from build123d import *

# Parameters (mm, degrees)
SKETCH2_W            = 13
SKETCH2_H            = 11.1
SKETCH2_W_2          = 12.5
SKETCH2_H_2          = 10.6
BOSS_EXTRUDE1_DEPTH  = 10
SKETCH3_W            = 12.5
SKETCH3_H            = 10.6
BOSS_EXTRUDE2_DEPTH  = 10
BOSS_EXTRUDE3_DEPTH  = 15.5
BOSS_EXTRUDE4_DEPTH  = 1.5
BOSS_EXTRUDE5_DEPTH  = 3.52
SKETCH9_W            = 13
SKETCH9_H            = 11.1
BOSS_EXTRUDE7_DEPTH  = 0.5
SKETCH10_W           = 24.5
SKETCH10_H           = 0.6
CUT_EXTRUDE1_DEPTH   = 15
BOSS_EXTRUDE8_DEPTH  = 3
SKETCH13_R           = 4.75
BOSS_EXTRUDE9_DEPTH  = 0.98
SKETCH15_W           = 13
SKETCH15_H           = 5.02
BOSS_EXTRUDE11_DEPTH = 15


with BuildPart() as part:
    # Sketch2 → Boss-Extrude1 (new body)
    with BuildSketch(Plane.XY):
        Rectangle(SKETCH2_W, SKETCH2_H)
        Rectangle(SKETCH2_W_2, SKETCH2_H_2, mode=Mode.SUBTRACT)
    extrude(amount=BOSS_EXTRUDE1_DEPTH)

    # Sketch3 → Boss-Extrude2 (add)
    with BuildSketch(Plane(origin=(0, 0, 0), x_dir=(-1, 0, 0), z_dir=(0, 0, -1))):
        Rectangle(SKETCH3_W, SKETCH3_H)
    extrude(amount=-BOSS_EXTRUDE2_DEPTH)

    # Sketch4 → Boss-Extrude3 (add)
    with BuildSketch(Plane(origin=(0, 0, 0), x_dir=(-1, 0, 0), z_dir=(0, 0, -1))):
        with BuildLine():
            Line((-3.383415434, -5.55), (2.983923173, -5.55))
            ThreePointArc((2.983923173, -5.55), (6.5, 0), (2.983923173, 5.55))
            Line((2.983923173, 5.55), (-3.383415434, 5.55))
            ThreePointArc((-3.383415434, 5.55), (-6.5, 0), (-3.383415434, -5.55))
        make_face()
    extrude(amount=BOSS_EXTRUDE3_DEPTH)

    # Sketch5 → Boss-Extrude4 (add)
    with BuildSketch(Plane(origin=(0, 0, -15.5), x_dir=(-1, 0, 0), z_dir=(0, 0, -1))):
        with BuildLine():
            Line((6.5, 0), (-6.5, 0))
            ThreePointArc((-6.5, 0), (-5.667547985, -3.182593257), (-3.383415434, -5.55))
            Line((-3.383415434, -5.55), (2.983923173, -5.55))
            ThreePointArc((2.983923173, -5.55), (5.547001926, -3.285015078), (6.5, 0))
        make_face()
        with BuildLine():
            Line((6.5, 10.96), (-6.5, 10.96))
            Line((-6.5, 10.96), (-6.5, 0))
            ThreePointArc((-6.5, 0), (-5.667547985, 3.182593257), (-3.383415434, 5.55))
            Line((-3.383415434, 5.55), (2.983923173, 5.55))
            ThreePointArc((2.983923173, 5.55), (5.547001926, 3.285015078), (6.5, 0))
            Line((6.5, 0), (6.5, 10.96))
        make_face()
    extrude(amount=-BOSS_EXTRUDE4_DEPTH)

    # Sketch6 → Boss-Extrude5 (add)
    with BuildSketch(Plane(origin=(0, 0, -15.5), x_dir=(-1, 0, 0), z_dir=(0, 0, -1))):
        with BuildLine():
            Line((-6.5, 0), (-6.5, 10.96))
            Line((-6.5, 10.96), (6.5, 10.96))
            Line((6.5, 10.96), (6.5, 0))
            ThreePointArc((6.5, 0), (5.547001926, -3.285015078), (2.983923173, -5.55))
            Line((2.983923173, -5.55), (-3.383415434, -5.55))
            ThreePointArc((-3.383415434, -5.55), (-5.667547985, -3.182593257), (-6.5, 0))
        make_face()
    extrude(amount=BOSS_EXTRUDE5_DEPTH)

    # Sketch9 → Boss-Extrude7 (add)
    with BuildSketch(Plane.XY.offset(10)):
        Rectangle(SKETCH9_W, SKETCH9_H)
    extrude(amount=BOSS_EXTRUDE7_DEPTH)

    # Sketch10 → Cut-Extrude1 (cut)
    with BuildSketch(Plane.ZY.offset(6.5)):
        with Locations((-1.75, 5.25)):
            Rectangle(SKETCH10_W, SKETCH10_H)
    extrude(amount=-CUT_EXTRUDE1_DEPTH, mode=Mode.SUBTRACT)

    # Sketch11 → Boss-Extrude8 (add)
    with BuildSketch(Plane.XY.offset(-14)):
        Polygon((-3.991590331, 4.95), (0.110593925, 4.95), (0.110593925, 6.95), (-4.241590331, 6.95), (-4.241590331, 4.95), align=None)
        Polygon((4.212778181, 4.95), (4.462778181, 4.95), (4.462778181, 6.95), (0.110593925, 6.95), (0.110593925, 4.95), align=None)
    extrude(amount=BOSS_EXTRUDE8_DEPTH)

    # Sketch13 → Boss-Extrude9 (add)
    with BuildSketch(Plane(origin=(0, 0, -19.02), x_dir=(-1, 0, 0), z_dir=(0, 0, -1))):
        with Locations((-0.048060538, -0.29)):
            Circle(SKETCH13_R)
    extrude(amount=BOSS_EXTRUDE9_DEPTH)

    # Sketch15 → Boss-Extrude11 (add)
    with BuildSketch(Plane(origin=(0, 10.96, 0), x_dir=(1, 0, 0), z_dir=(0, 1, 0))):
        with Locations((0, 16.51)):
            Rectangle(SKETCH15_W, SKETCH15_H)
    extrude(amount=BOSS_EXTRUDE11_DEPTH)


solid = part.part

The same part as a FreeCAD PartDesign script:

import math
import FreeCAD as App
import Part
import Sketcher
Q = App.Units.Quantity


def add_polygon(sketch, points):
    """Adds a closed chain of lines whose ends are joined by coincident constraints."""
    first, n = sketch.GeometryCount, len(points)
    for a, b in zip(points, points[1:] + points[:1]):
        sketch.addGeometry(Part.LineSegment(App.Vector(*a, 0), App.Vector(*b, 0)), False)
    for i in range(n):
        sketch.addConstraint(Sketcher.Constraint("Coincident", first + i, 2, first + (i + 1) % n, 1))

doc = App.newDocument("Part")
params = doc.addObject("Spreadsheet::Sheet", "Params")
for row, (alias, value) in enumerate([
    ("sketch1_width", "13 mm"),
    ("sketch1_width2", "12.5 mm"),
    ("sketch1_height", "11.1 mm"),
    ("sketch1_height2", "10.6 mm"),
    ("pad1_length", "10 mm"),
    ("sketch2_width", "12.5 mm"),
    ("sketch2_height", "10.6 mm"),
    ("pad2_length", "10 mm"),
    ("sketch3_radius", "6.5 mm"),
    ("pad3_length", "15.5 mm"),
    ("sketch4_radius", "6.5 mm"),
    ("sketch4_width", "13 mm"),
    ("sketch4_height", "10.96 mm"),
    ("pad4_length", "1.5 mm"),
    ("sketch5_radius", "6.5 mm"),
    ("sketch5_height", "10.96 mm"),
    ("pad5_length", "3.52 mm"),
    ("sketch6_width", "13 mm"),
    ("sketch6_height", "11.1 mm"),
    ("pad6_length", "0.5 mm"),
    ("sketch7_width", "0.6 mm"),
    ("sketch7_height", "24.5 mm"),
    ("pocket1_length", "15 mm"),
    ("sketch8_height", "2 mm"),
    ("pad7_length", "3 mm"),
    ("sketch9_diameter", "9.5 mm"),
    ("pad8_length", "0.98 mm"),
    ("sketch10_width", "13 mm"),
    ("sketch10_height", "5.02 mm"),
    ("pad9_length", "15 mm"),
], start=1):
    params.set(f"A{row}", alias)
    params.set(f"B{row}", "=" + value)
    params.setAlias(f"B{row}", alias)

body = doc.addObject("PartDesign::Body", "Body")

# Sketch on XY plane
sketch1 = body.newObject("Sketcher::SketchObject", "Sketch")
sketch1.AttachmentSupport = (doc.getObject("XY_Plane"), [""])
sketch1.MapMode = "FlatFace"
add_polygon(sketch1, [(-6, 6), (-6, -6), (6, -6), (6, 6)])  # lines 0-3
add_polygon(sketch1, [(6, -5), (-6, -5), (-6, 5), (6, 5)])  # lines 4-7
sketch1.addConstraint([
    Sketcher.Constraint("Vertical", 0),
    Sketcher.Constraint("Horizontal", 1),
    Sketcher.Constraint("Vertical", 2),
    Sketcher.Constraint("Horizontal", 3),
    Sketcher.Constraint("Horizontal", 4),
    Sketcher.Constraint("Vertical", 5),
    Sketcher.Constraint("Horizontal", 6),
    Sketcher.Constraint("Vertical", 7),
    Sketcher.Constraint("Symmetric", 0, 2, 2, 2, -1, 1),
    Sketcher.Constraint("Symmetric", 4, 2, 6, 2, -1, 1),
    Sketcher.Constraint("DistanceX", 1, 1, 1, 2, Q("13 mm")),
    Sketcher.Constraint("DistanceX", 4, 2, 4, 1, Q("12.5 mm")),
    Sketcher.Constraint("DistanceY", 0, 2, 0, 1, Q("11.1 mm")),
    Sketcher.Constraint("DistanceY", 5, 1, 5, 2, Q("10.6 mm")),
])
sketch1.setExpression("Constraints[18]", "Params.sketch1_width")
sketch1.setExpression("Constraints[19]", "Params.sketch1_width2")
sketch1.setExpression("Constraints[20]", "Params.sketch1_height")
sketch1.setExpression("Constraints[21]", "Params.sketch1_height2")
pad1 = body.newObject("PartDesign::Pad", "Pad")
pad1.Profile = sketch1
pad1.setExpression("Length", "Params.pad1_length")

# Sketch on XY plane
sketch2 = body.newObject("Sketcher::SketchObject", "Sketch001")
sketch2.AttachmentSupport = (doc.getObject("XY_Plane"), [""])
sketch2.MapMode = "FlatFace"
add_polygon(sketch2, [(6, 5), (6, -5), (-6, -5), (-6, 5)])  # lines 0-3
sketch2.addConstraint([
    Sketcher.Constraint("Vertical", 0),
    Sketcher.Constraint("Horizontal", 1),
    Sketcher.Constraint("Vertical", 2),
    Sketcher.Constraint("Horizontal", 3),
    Sketcher.Constraint("Symmetric", 0, 2, 2, 2, -1, 1),
    Sketcher.Constraint("DistanceX", 1, 2, 1, 1, Q("12.5 mm")),
    Sketcher.Constraint("DistanceY", 0, 2, 0, 1, Q("10.6 mm")),
])
sketch2.setExpression("Constraints[9]", "Params.sketch2_width")
sketch2.setExpression("Constraints[10]", "Params.sketch2_height")
pad2 = body.newObject("PartDesign::Pad", "Pad001")
pad2.Profile = sketch2
pad2.setExpression("Length", "Params.pad2_length")

# Sketch on XY plane
sketch3 = body.newObject("Sketcher::SketchObject", "Sketch002")
sketch3.AttachmentSupport = (doc.getObject("XY_Plane"), [""])
sketch3.MapMode = "FlatFace"
sketch3.addGeometry([
    Part.LineSegment(App.Vector(3, -6, 0), App.Vector(-3, -6, 0)),
    Part.ArcOfCircle(Part.Circle(App.Vector(0, 0, 0), App.Vector(0, 0, 1), 6), math.radians(115), math.radians(245)),
    Part.LineSegment(App.Vector(-3, 6, 0), App.Vector(3, 6, 0)),
    Part.ArcOfCircle(Part.Circle(App.Vector(0, 0, 0), App.Vector(0, 0, 1), 6), math.radians(-59), math.radians(59)),
], False)
sketch3.addConstraint([
    Sketcher.Constraint("Coincident", 0, 2, 1, 2),
    Sketcher.Constraint("Coincident", 1, 1, 2, 1),
    Sketcher.Constraint("Coincident", 2, 2, 3, 2),
    Sketcher.Constraint("Coincident", 3, 1, 0, 1),
    Sketcher.Constraint("Horizontal", 0),
    Sketcher.Constraint("Horizontal", 2),
    Sketcher.Constraint("Coincident", 3, 3, -1, 1),
    Sketcher.Constraint("Symmetric", 0, 2, 1, 1, -1),
    Sketcher.Constraint("Radius", 3, Q("6.5 mm")),
    Sketcher.Constraint("DistanceY", 0, 2, 1, 1, Q("11.1 mm")),
    Sketcher.Constraint("Radius", 1, Q("6.138275 mm")),
    Sketcher.Constraint("DistanceX", 0, 2, 0, 1, Q("6.367339 mm")),
])
sketch3.setExpression("Constraints[8]", "Params.sketch3_radius")
pad3 = body.newObject("PartDesign::Pad", "Pad002")
pad3.Profile = sketch3
pad3.setExpression("Length", "Params.pad3_length")
pad3.Reversed = True

# Sketch on XY plane
sketch4 = body.newObject("Sketcher::SketchObject", "Sketch003")
sketch4.AttachmentSupport = (doc.getObject("XY_Plane"), [""])
sketch4.MapMode = "FlatFace"
sketch4.AttachmentOffset = App.Placement(App.Vector(0, 0, -15.5), App.Rotation())
sketch4.addGeometry([
    Part.LineSegment(App.Vector(-6, 0, 0), App.Vector(6, 0, 0)),  # 0
    Part.ArcOfCircle(Part.Circle(App.Vector(0, 0, 0), App.Vector(0, 0, 1), 6), math.radians(-59), math.radians(0)),  # 1
    Part.LineSegment(App.Vector(3, -6, 0), App.Vector(-3, -6, 0)),  # 2
    Part.ArcOfCircle(Part.Circle(App.Vector(0, 0, 0), App.Vector(0, 0, 1), 6), math.radians(-180), math.radians(-115)),  # 3
    Part.LineSegment(App.Vector(-6, 11, 0), App.Vector(6, 11, 0)),  # 4
    Part.LineSegment(App.Vector(6, 11, 0), App.Vector(6, 0, 0)),  # 5
    Part.ArcOfCircle(Part.Circle(App.Vector(0, 0, 0), App.Vector(0, 0, 1), 6), math.radians(0), math.radians(59)),  # 6
    Part.LineSegment(App.Vector(3, 6, 0), App.Vector(-3, 6, 0)),  # 7
    Part.ArcOfCircle(Part.Circle(App.Vector(0, 0, 0), App.Vector(0, 0, 1), 6), math.radians(115), math.radians(180)),  # 8
    Part.LineSegment(App.Vector(-6, 0, 0), App.Vector(-6, 11, 0)),  # 9
], False)
sketch4.addConstraint([
    Sketcher.Constraint("Coincident", 0, 2, 1, 2),
    Sketcher.Constraint("Coincident", 1, 1, 2, 1),
    Sketcher.Constraint("Coincident", 2, 2, 3, 2),
    Sketcher.Constraint("Coincident", 3, 1, 0, 1),
    Sketcher.Constraint("Coincident", 4, 2, 5, 1),
    Sketcher.Constraint("Tangent", 5, 2, 6, 1),
    Sketcher.Constraint("Coincident", 6, 2, 7, 1),
    Sketcher.Constraint("Coincident", 7, 2, 8, 1),
    Sketcher.Constraint("Tangent", 8, 2, 9, 1),
    Sketcher.Constraint("Coincident", 9, 2, 4, 1),
    Sketcher.Constraint("Horizontal", 0),
    Sketcher.Constraint("Horizontal", 2),
    Sketcher.Constraint("Horizontal", 4),
    Sketcher.Constraint("Vertical", 5),
    Sketcher.Constraint("Horizontal", 7),
    Sketcher.Constraint("Vertical", 9),
    Sketcher.Constraint("Coincident", 1, 3, -1, 1),
    Sketcher.Constraint("Coincident", 6, 3, -1, 1),
    Sketcher.Constraint("Coincident", 8, 3, 3, 3),
    Sketcher.Constraint("Coincident", 5, 2, 0, 2),
    Sketcher.Constraint("Coincident", 8, 2, 3, 1),
    Sketcher.Constraint("Vertical", 1, 1, 6, 2),
    Sketcher.Constraint("Radius", 1, Q("6.5 mm")),
    Sketcher.Constraint("DistanceX", 0, 1, 0, 2, Q("13 mm")),
    Sketcher.Constraint("DistanceY", 5, 2, 5, 1, Q("10.96 mm")),
    Sketcher.Constraint("DistanceY", 1, 1, -1, 1, Q("5.55 mm")),
    Sketcher.Constraint("Radius", 3, Q("6.138275 mm")),
])
sketch4.setExpression("Constraints[22]", "Params.sketch4_radius")
sketch4.setExpression("Constraints[23]", "Params.sketch4_width")
sketch4.setExpression("Constraints[24]", "Params.sketch4_height")
pad4 = body.newObject("PartDesign::Pad", "Pad003")
pad4.Profile = sketch4
pad4.setExpression("Length", "Params.pad4_length")

# Sketch on XY plane
sketch5 = body.newObject("Sketcher::SketchObject", "Sketch004")
sketch5.AttachmentSupport = (doc.getObject("XY_Plane"), [""])
sketch5.MapMode = "FlatFace"
sketch5.AttachmentOffset = App.Placement(App.Vector(0, 0, -15.5), App.Rotation())
sketch5.addGeometry([
    Part.LineSegment(App.Vector(6, 11, 0), App.Vector(6, 0, 0)),  # 0
    Part.ArcOfCircle(Part.Circle(App.Vector(0, 0, 0), App.Vector(0, 0, 1), 6), math.radians(-59), math.radians(0)),  # 1
    Part.LineSegment(App.Vector(3, -6, 0), App.Vector(-3, -6, 0)),  # 2
    Part.ArcOfCircle(Part.Circle(App.Vector(0, 0, 0), App.Vector(0, 0, 1), 6), math.radians(-180), math.radians(-115)),  # 3
    Part.LineSegment(App.Vector(-6, 0, 0), App.Vector(-6, 11, 0)),  # 4
    Part.LineSegment(App.Vector(-6, 11, 0), App.Vector(6, 11, 0)),  # 5
], False)
sketch5.addConstraint([
    Sketcher.Constraint("Tangent", 0, 2, 1, 2),
    Sketcher.Constraint("Coincident", 1, 1, 2, 1),
    Sketcher.Constraint("Coincident", 2, 2, 3, 2),
    Sketcher.Constraint("Tangent", 3, 1, 4, 1),
    Sketcher.Constraint("Coincident", 4, 2, 5, 1),
    Sketcher.Constraint("Coincident", 5, 2, 0, 1),
    Sketcher.Constraint("Vertical", 0),
    Sketcher.Constraint("Horizontal", 2),
    Sketcher.Constraint("Vertical", 4),
    Sketcher.Constraint("Horizontal", 5),
    Sketcher.Constraint("Coincident", 1, 3, -1, 1),
    Sketcher.Constraint("Symmetric", 0, 2, 3, 1, -1, 1),
    Sketcher.Constraint("Radius", 1, Q("6.5 mm")),
    Sketcher.Constraint("DistanceY", 0, 2, 0, 1, Q("10.96 mm")),
    Sketcher.Constraint("DistanceY", 1, 1, -1, 1, Q("5.55 mm")),
    Sketcher.Constraint("Radius", 3, Q("6.138275 mm")),
])
sketch5.setExpression("Constraints[12]", "Params.sketch5_radius")
sketch5.setExpression("Constraints[13]", "Params.sketch5_height")
pad5 = body.newObject("PartDesign::Pad", "Pad004")
pad5.Profile = sketch5
pad5.setExpression("Length", "Params.pad5_length")
pad5.Reversed = True

# Sketch on XY plane
sketch6 = body.newObject("Sketcher::SketchObject", "Sketch005")
sketch6.AttachmentSupport = (doc.getObject("XY_Plane"), [""])
sketch6.MapMode = "FlatFace"
sketch6.AttachmentOffset = App.Placement(App.Vector(0, 0, 10), App.Rotation())
add_polygon(sketch6, [(-6, 6), (-6, -6), (6, -6), (6, 6)])  # lines 0-3
sketch6.addConstraint([
    Sketcher.Constraint("Vertical", 0),
    Sketcher.Constraint("Horizontal", 1),
    Sketcher.Constraint("Vertical", 2),
    Sketcher.Constraint("Horizontal", 3),
    Sketcher.Constraint("Symmetric", 0, 2, 2, 2, -1, 1),
    Sketcher.Constraint("DistanceX", 1, 1, 1, 2, Q("13 mm")),
    Sketcher.Constraint("DistanceY", 0, 2, 0, 1, Q("11.1 mm")),
])
sketch6.setExpression("Constraints[9]", "Params.sketch6_width")
sketch6.setExpression("Constraints[10]", "Params.sketch6_height")
pad6 = body.newObject("PartDesign::Pad", "Pad005")
pad6.Profile = sketch6
pad6.setExpression("Length", "Params.pad6_length")

# Sketch on YZ plane
sketch7 = body.newObject("Sketcher::SketchObject", "Sketch006")
sketch7.AttachmentSupport = (doc.getObject("YZ_Plane"), [""])
sketch7.MapMode = "FlatFace"
sketch7.AttachmentOffset = App.Placement(App.Vector(0, 0, -6.5), App.Rotation())
add_polygon(sketch7, [(5.5, -14), (5, -14), (5, 10.5), (5.5, 10.5)])  # lines 0-3
sketch7.addConstraint([
    Sketcher.Constraint("Horizontal", 0),
    Sketcher.Constraint("Vertical", 1),
    Sketcher.Constraint("Horizontal", 2),
    Sketcher.Constraint("Vertical", 3),
    Sketcher.Constraint("DistanceX", 0, 2, 0, 1, Q("0.6 mm")),
    Sketcher.Constraint("DistanceY", 1, 1, 1, 2, Q("24.5 mm")),
    Sketcher.Constraint("DistanceY", 0, 2, -1, 1, Q("14 mm")),
    Sketcher.Constraint("DistanceX", -1, 1, 0, 2, Q("4.95 mm")),
])
sketch7.setExpression("Constraints[8]", "Params.sketch7_width")
sketch7.setExpression("Constraints[9]", "Params.sketch7_height")
pocket1 = body.newObject("PartDesign::Pocket", "Pocket")
pocket1.Profile = sketch7
pocket1.setExpression("Length", "Params.pocket1_length")
pocket1.Reversed = True

# Sketch on XY plane
sketch8 = body.newObject("Sketcher::SketchObject", "Sketch007")
sketch8.AttachmentSupport = (doc.getObject("XY_Plane"), [""])
sketch8.MapMode = "FlatFace"
sketch8.AttachmentOffset = App.Placement(App.Vector(0, 0, -14), App.Rotation())
add_polygon(sketch8, [(-4.2, 7), (-4.2, 5), (4.5, 5), (4.5, 7)])  # lines 0-3
sketch8.addConstraint([
    Sketcher.Constraint("Vertical", 0),
    Sketcher.Constraint("Horizontal", 1),
    Sketcher.Constraint("Vertical", 2),
    Sketcher.Constraint("Horizontal", 3),
    Sketcher.Constraint("DistanceY", 0, 2, 0, 1, Q("2 mm")),
    Sketcher.Constraint("DistanceY", -1, 1, 0, 2, Q("4.95 mm")),
    Sketcher.Constraint("DistanceX", 1, 1, 1, 2, Q("8.704369 mm")),
    Sketcher.Constraint("DistanceX", 0, 2, -1, 1, Q("4.24159 mm")),
])
sketch8.setExpression("Constraints[8]", "Params.sketch8_height")
pad7 = body.newObject("PartDesign::Pad", "Pad006")
pad7.Profile = sketch8
pad7.setExpression("Length", "Params.pad7_length")

# Sketch on XY plane
sketch9 = body.newObject("Sketcher::SketchObject", "Sketch008")
sketch9.AttachmentSupport = (doc.getObject("XY_Plane"), [""])
sketch9.MapMode = "FlatFace"
sketch9.AttachmentOffset = App.Placement(App.Vector(0, 0, -19.02), App.Rotation())
sketch9.addGeometry(Part.Circle(App.Vector(0, -0.3, 0), App.Vector(0, 0, 1), 4.8), False)
sketch9.addConstraint([
    Sketcher.Constraint("Diameter", 0, Q("9.5 mm")),
    Sketcher.Constraint("DistanceY", 0, 3, -1, 1, Q("0.29 mm")),
    Sketcher.Constraint("DistanceX", -1, 1, 0, 3, Q("0.048061 mm")),
])
sketch9.setExpression("Constraints[0]", "Params.sketch9_diameter")
pad8 = body.newObject("PartDesign::Pad", "Pad007")
pad8.Profile = sketch9
pad8.setExpression("Length", "Params.pad8_length")
pad8.Reversed = True

# Sketch on XZ plane
sketch10 = body.newObject("Sketcher::SketchObject", "Sketch009")
sketch10.AttachmentSupport = (doc.getObject("XZ_Plane"), [""])
sketch10.MapMode = "FlatFace"
sketch10.AttachmentOffset = App.Placement(App.Vector(0, 0, -10.96), App.Rotation())
add_polygon(sketch10, [(-6, -19), (-6, -14), (6, -14), (6, -19)])  # lines 0-3
sketch10.addConstraint([
    Sketcher.Constraint("Vertical", 0),
    Sketcher.Constraint("Horizontal", 1),
    Sketcher.Constraint("Vertical", 2),
    Sketcher.Constraint("Horizontal", 3),
    Sketcher.Constraint("DistanceX", 1, 1, 1, 2, Q("13 mm")),
    Sketcher.Constraint("DistanceY", 0, 2, -1, 1, Q("14 mm")),
    Sketcher.Constraint("DistanceY", 0, 1, 0, 2, Q("5.02 mm")),
    Sketcher.Constraint("DistanceX", 0, 2, -1, 1, Q("6.5 mm")),
])
sketch10.setExpression("Constraints[8]", "Params.sketch10_width")
sketch10.setExpression("Constraints[10]", "Params.sketch10_height")
pad9 = body.newObject("PartDesign::Pad", "Pad008")
pad9.Profile = sketch10
pad9.setExpression("Length", "Params.pad9_length")
pad9.Reversed = True

doc.recompute()
